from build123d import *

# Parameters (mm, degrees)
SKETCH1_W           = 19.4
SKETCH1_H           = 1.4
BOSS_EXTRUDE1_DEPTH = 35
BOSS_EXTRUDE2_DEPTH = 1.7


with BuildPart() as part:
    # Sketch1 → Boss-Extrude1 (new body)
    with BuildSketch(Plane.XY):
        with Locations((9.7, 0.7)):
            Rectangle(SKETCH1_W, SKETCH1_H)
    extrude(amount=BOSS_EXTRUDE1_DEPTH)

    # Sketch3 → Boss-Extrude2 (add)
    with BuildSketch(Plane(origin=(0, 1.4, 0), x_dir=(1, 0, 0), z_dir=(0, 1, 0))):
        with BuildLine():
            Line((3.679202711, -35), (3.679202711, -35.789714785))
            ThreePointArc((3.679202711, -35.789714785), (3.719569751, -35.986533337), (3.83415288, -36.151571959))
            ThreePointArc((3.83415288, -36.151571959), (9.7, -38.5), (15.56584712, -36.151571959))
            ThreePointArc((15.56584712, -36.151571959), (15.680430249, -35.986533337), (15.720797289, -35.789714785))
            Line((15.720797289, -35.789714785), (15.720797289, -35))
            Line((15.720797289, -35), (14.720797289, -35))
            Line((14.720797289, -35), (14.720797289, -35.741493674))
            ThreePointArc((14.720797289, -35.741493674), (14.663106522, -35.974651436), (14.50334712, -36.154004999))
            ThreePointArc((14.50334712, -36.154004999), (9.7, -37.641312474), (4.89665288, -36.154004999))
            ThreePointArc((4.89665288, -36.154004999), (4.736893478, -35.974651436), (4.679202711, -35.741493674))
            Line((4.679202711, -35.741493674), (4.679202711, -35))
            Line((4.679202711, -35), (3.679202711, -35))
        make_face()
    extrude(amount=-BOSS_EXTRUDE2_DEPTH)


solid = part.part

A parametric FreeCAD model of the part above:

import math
import FreeCAD as App
import Part
import Sketcher
from FreeCAD import Vector
Q = App.Units.Quantity

doc = App.newDocument("Part")
body = doc.addObject("PartDesign::Body", "Body")

# Sketch on XY plane
sketch1 = body.newObject("Sketcher::SketchObject", "Sketch")
sketch1.AttachmentSupport = (doc.getObject("XY_Plane"), [""])
sketch1.MapMode = "FlatFace"
sketch1.addGeometry(Part.LineSegment(Vector(0, 1.4, 0), Vector(0, 0, 0)), False)
sketch1.addGeometry(Part.LineSegment(Vector(0, 0, 0), Vector(19.4, 0, 0)), False)
sketch1.addGeometry(Part.LineSegment(Vector(19.4, 0, 0), Vector(19.4, 1.4, 0)), False)
sketch1.addGeometry(Part.LineSegment(Vector(19.4, 1.4, 0), Vector(0, 1.4, 0)), False)
sketch1.addConstraint(Sketcher.Constraint("Coincident", 0, 2, 1, 1))
sketch1.addConstraint(Sketcher.Constraint("Coincident", 1, 2, 2, 1))
sketch1.addConstraint(Sketcher.Constraint("Coincident", 2, 2, 3, 1))
sketch1.addConstraint(Sketcher.Constraint("Coincident", 3, 2, 0, 1))
sketch1.addConstraint(Sketcher.Constraint("Vertical", 0))
sketch1.addConstraint(Sketcher.Constraint("Horizontal", 1))
sketch1.addConstraint(Sketcher.Constraint("Vertical", 2))
sketch1.addConstraint(Sketcher.Constraint("Horizontal", 3))
sketch1.addConstraint(Sketcher.Constraint("Coincident", 0, 2, -1, 1))
sketch1.addConstraint(Sketcher.Constraint("DistanceX", 1, 1, 1, 2, Q("19.4 mm")))
sketch1.addConstraint(Sketcher.Constraint("DistanceY", 0, 2, 0, 1, Q("1.4 mm")))
pad1 = body.newObject("PartDesign::Pad", "Pad")
pad1.Profile = sketch1
pad1.Length = 35

# Sketch on XZ plane
sketch2 = body.newObject("Sketcher::SketchObject", "Sketch001")
sketch2.AttachmentSupport = (doc.getObject("XZ_Plane"), [""])
sketch2.MapMode = "FlatFace"
sketch2.AttachmentOffset = App.Placement(Vector(0, 0, -1.4), App.Rotation())
sketch2.addGeometry(Part.LineSegment(Vector(3.68, 35, 0), Vector(3.68, 35.79, 0)), False)
sketch2.addGeometry(Part.ArcOfCircle(Part.Circle(Vector(4.18, 35.79, 0), Vector(0, 0, 1), 0.5), math.radians(134), math.radians(180)), False)
sketch2.addGeometry(Part.ArcOfCircle(Part.Circle(Vector(9.7, 30, 0), Vector(0, 0, 1), 8.5), math.radians(46), math.radians(134)), False)
sketch2.addGeometry(Part.ArcOfCircle(Part.Circle(Vector(15.22, 35.79, 0), Vector(0, 0, 1), 0.5), math.radians(0), math.radians(46)), False)
sketch2.addGeometry(Part.LineSegment(Vector(15.72, 35.79, 0), Vector(15.72, 35, 0)), False)
sketch2.addGeometry(Part.LineSegment(Vector(15.72, 35, 0), Vector(14.72, 35, 0)), False)
sketch2.addGeometry(Part.LineSegment(Vector(14.72, 35, 0), Vector(14.72, 35.74, 0)), False)
sketch2.addGeometry(Part.ArcOfCircle(Part.Circle(Vector(14.22, 35.74, 0), Vector(0, 0, 1), 0.5), math.radians(0), math.radians(56)), False)
sketch2.addGeometry(Part.ArcOfCircle(Part.Circle(Vector(9.7, 29.14, 0), Vector(0, 0, 1), 8.5), math.radians(56), math.radians(124)), False)
sketch2.addGeometry(Part.ArcOfCircle(Part.Circle(Vector(5.18, 35.74, 0), Vector(0, 0, 1), 0.5), math.radians(124), math.radians(180)), False)
sketch2.addGeometry(Part.LineSegment(Vector(4.68, 35.74, 0), Vector(4.68, 35, 0)), False)
sketch2.addGeometry(Part.LineSegment(Vector(4.68, 35, 0), Vector(3.68, 35, 0)), False)
sketch2.addConstraint(Sketcher.Constraint("Tangent", 0, 2, 1, 2))
sketch2.addConstraint(Sketcher.Constraint("Tangent", 1, 1, 2, 2))
sketch2.addConstraint(Sketcher.Constraint("Tangent", 2, 1, 3, 2))
sketch2.addConstraint(Sketcher.Constraint("Tangent", 3, 1, 4, 1))
sketch2.addConstraint(Sketcher.Constraint("Coincident", 4, 2, 5, 1))
sketch2.addConstraint(Sketcher.Constraint("Coincident", 5, 2, 6, 1))
sketch2.addConstraint(Sketcher.Constraint("Tangent", 6, 2, 7, 1))
sketch2.addConstraint(Sketcher.Constraint("Tangent", 7, 2, 8, 1))
sketch2.addConstraint(Sketcher.Constraint("Tangent", 8, 2, 9, 1))
sketch2.addConstraint(Sketcher.Constraint("Tangent", 9, 2, 10, 1))
sketch2.addConstraint(Sketcher.Constraint("Coincident", 10, 2, 11, 1))
sketch2.addConstraint(Sketcher.Constraint("Coincident", 11, 2, 0, 1))
sketch2.addConstraint(Sketcher.Constraint("Vertical", 0))
sketch2.addConstraint(Sketcher.Constraint("Vertical", 4))
sketch2.addConstraint(Sketcher.Constraint("Horizontal", 5))
sketch2.addConstraint(Sketcher.Constraint("Vertical", 6))
sketch2.addConstraint(Sketcher.Constraint("Vertical", 10))
sketch2.addConstraint(Sketcher.Constraint("Horizontal", 11))
sketch2.addConstraint(Sketcher.Constraint("Equal", 1, 3))
sketch2.addConstraint(Sketcher.Constraint("Equal", 3, 7))
sketch2.addConstraint(Sketcher.Constraint("Equal", 2, 8))
sketch2.addConstraint(Sketcher.Constraint("Equal", 7, 9))
sketch2.addConstraint(Sketcher.Constraint("Horizontal", 1, 3, 3, 3))
sketch2.addConstraint(Sketcher.Constraint("Horizontal", 7, 3, 9, 3))
sketch2.addConstraint(Sketcher.Constraint("Horizontal", 5, 2, 10, 2))
sketch2.addConstraint(Sketcher.Constraint("Vertical", 2, 3, 8, 3))
sketch2.addConstraint(Sketcher.Constraint("Radius", 1, Q("0.5 mm")))
sketch2.addConstraint(Sketcher.Constraint("Radius", 2, Q("8.5 mm")))
sketch2.addConstraint(Sketcher.Constraint("DistanceX", 5, 2, 5, 1, Q("1 mm")))
sketch2.addConstraint(Sketcher.Constraint("DistanceY", -1, 1, 2, 3, Q("30 mm")))
sketch2.addConstraint(Sketcher.Constraint("DistanceY", -1, 1, 4, 2, Q("35 mm")))
sketch2.addConstraint(Sketcher.Constraint("DistanceX", -1, 1, 2, 3, Q("9.7 mm")))
sketch2.addConstraint(Sketcher.Constraint("DistanceY", 0, 1, 0, 2, Q("0.789715 mm")))
sketch2.addConstraint(Sketcher.Constraint("DistanceY", 6, 1, 6, 2, Q("0.741494 mm")))
pad2 = body.newObject("PartDesign::Pad", "Pad001")
pad2.Profile = sketch2
pad2.Length = 1.7

doc.recompute()
